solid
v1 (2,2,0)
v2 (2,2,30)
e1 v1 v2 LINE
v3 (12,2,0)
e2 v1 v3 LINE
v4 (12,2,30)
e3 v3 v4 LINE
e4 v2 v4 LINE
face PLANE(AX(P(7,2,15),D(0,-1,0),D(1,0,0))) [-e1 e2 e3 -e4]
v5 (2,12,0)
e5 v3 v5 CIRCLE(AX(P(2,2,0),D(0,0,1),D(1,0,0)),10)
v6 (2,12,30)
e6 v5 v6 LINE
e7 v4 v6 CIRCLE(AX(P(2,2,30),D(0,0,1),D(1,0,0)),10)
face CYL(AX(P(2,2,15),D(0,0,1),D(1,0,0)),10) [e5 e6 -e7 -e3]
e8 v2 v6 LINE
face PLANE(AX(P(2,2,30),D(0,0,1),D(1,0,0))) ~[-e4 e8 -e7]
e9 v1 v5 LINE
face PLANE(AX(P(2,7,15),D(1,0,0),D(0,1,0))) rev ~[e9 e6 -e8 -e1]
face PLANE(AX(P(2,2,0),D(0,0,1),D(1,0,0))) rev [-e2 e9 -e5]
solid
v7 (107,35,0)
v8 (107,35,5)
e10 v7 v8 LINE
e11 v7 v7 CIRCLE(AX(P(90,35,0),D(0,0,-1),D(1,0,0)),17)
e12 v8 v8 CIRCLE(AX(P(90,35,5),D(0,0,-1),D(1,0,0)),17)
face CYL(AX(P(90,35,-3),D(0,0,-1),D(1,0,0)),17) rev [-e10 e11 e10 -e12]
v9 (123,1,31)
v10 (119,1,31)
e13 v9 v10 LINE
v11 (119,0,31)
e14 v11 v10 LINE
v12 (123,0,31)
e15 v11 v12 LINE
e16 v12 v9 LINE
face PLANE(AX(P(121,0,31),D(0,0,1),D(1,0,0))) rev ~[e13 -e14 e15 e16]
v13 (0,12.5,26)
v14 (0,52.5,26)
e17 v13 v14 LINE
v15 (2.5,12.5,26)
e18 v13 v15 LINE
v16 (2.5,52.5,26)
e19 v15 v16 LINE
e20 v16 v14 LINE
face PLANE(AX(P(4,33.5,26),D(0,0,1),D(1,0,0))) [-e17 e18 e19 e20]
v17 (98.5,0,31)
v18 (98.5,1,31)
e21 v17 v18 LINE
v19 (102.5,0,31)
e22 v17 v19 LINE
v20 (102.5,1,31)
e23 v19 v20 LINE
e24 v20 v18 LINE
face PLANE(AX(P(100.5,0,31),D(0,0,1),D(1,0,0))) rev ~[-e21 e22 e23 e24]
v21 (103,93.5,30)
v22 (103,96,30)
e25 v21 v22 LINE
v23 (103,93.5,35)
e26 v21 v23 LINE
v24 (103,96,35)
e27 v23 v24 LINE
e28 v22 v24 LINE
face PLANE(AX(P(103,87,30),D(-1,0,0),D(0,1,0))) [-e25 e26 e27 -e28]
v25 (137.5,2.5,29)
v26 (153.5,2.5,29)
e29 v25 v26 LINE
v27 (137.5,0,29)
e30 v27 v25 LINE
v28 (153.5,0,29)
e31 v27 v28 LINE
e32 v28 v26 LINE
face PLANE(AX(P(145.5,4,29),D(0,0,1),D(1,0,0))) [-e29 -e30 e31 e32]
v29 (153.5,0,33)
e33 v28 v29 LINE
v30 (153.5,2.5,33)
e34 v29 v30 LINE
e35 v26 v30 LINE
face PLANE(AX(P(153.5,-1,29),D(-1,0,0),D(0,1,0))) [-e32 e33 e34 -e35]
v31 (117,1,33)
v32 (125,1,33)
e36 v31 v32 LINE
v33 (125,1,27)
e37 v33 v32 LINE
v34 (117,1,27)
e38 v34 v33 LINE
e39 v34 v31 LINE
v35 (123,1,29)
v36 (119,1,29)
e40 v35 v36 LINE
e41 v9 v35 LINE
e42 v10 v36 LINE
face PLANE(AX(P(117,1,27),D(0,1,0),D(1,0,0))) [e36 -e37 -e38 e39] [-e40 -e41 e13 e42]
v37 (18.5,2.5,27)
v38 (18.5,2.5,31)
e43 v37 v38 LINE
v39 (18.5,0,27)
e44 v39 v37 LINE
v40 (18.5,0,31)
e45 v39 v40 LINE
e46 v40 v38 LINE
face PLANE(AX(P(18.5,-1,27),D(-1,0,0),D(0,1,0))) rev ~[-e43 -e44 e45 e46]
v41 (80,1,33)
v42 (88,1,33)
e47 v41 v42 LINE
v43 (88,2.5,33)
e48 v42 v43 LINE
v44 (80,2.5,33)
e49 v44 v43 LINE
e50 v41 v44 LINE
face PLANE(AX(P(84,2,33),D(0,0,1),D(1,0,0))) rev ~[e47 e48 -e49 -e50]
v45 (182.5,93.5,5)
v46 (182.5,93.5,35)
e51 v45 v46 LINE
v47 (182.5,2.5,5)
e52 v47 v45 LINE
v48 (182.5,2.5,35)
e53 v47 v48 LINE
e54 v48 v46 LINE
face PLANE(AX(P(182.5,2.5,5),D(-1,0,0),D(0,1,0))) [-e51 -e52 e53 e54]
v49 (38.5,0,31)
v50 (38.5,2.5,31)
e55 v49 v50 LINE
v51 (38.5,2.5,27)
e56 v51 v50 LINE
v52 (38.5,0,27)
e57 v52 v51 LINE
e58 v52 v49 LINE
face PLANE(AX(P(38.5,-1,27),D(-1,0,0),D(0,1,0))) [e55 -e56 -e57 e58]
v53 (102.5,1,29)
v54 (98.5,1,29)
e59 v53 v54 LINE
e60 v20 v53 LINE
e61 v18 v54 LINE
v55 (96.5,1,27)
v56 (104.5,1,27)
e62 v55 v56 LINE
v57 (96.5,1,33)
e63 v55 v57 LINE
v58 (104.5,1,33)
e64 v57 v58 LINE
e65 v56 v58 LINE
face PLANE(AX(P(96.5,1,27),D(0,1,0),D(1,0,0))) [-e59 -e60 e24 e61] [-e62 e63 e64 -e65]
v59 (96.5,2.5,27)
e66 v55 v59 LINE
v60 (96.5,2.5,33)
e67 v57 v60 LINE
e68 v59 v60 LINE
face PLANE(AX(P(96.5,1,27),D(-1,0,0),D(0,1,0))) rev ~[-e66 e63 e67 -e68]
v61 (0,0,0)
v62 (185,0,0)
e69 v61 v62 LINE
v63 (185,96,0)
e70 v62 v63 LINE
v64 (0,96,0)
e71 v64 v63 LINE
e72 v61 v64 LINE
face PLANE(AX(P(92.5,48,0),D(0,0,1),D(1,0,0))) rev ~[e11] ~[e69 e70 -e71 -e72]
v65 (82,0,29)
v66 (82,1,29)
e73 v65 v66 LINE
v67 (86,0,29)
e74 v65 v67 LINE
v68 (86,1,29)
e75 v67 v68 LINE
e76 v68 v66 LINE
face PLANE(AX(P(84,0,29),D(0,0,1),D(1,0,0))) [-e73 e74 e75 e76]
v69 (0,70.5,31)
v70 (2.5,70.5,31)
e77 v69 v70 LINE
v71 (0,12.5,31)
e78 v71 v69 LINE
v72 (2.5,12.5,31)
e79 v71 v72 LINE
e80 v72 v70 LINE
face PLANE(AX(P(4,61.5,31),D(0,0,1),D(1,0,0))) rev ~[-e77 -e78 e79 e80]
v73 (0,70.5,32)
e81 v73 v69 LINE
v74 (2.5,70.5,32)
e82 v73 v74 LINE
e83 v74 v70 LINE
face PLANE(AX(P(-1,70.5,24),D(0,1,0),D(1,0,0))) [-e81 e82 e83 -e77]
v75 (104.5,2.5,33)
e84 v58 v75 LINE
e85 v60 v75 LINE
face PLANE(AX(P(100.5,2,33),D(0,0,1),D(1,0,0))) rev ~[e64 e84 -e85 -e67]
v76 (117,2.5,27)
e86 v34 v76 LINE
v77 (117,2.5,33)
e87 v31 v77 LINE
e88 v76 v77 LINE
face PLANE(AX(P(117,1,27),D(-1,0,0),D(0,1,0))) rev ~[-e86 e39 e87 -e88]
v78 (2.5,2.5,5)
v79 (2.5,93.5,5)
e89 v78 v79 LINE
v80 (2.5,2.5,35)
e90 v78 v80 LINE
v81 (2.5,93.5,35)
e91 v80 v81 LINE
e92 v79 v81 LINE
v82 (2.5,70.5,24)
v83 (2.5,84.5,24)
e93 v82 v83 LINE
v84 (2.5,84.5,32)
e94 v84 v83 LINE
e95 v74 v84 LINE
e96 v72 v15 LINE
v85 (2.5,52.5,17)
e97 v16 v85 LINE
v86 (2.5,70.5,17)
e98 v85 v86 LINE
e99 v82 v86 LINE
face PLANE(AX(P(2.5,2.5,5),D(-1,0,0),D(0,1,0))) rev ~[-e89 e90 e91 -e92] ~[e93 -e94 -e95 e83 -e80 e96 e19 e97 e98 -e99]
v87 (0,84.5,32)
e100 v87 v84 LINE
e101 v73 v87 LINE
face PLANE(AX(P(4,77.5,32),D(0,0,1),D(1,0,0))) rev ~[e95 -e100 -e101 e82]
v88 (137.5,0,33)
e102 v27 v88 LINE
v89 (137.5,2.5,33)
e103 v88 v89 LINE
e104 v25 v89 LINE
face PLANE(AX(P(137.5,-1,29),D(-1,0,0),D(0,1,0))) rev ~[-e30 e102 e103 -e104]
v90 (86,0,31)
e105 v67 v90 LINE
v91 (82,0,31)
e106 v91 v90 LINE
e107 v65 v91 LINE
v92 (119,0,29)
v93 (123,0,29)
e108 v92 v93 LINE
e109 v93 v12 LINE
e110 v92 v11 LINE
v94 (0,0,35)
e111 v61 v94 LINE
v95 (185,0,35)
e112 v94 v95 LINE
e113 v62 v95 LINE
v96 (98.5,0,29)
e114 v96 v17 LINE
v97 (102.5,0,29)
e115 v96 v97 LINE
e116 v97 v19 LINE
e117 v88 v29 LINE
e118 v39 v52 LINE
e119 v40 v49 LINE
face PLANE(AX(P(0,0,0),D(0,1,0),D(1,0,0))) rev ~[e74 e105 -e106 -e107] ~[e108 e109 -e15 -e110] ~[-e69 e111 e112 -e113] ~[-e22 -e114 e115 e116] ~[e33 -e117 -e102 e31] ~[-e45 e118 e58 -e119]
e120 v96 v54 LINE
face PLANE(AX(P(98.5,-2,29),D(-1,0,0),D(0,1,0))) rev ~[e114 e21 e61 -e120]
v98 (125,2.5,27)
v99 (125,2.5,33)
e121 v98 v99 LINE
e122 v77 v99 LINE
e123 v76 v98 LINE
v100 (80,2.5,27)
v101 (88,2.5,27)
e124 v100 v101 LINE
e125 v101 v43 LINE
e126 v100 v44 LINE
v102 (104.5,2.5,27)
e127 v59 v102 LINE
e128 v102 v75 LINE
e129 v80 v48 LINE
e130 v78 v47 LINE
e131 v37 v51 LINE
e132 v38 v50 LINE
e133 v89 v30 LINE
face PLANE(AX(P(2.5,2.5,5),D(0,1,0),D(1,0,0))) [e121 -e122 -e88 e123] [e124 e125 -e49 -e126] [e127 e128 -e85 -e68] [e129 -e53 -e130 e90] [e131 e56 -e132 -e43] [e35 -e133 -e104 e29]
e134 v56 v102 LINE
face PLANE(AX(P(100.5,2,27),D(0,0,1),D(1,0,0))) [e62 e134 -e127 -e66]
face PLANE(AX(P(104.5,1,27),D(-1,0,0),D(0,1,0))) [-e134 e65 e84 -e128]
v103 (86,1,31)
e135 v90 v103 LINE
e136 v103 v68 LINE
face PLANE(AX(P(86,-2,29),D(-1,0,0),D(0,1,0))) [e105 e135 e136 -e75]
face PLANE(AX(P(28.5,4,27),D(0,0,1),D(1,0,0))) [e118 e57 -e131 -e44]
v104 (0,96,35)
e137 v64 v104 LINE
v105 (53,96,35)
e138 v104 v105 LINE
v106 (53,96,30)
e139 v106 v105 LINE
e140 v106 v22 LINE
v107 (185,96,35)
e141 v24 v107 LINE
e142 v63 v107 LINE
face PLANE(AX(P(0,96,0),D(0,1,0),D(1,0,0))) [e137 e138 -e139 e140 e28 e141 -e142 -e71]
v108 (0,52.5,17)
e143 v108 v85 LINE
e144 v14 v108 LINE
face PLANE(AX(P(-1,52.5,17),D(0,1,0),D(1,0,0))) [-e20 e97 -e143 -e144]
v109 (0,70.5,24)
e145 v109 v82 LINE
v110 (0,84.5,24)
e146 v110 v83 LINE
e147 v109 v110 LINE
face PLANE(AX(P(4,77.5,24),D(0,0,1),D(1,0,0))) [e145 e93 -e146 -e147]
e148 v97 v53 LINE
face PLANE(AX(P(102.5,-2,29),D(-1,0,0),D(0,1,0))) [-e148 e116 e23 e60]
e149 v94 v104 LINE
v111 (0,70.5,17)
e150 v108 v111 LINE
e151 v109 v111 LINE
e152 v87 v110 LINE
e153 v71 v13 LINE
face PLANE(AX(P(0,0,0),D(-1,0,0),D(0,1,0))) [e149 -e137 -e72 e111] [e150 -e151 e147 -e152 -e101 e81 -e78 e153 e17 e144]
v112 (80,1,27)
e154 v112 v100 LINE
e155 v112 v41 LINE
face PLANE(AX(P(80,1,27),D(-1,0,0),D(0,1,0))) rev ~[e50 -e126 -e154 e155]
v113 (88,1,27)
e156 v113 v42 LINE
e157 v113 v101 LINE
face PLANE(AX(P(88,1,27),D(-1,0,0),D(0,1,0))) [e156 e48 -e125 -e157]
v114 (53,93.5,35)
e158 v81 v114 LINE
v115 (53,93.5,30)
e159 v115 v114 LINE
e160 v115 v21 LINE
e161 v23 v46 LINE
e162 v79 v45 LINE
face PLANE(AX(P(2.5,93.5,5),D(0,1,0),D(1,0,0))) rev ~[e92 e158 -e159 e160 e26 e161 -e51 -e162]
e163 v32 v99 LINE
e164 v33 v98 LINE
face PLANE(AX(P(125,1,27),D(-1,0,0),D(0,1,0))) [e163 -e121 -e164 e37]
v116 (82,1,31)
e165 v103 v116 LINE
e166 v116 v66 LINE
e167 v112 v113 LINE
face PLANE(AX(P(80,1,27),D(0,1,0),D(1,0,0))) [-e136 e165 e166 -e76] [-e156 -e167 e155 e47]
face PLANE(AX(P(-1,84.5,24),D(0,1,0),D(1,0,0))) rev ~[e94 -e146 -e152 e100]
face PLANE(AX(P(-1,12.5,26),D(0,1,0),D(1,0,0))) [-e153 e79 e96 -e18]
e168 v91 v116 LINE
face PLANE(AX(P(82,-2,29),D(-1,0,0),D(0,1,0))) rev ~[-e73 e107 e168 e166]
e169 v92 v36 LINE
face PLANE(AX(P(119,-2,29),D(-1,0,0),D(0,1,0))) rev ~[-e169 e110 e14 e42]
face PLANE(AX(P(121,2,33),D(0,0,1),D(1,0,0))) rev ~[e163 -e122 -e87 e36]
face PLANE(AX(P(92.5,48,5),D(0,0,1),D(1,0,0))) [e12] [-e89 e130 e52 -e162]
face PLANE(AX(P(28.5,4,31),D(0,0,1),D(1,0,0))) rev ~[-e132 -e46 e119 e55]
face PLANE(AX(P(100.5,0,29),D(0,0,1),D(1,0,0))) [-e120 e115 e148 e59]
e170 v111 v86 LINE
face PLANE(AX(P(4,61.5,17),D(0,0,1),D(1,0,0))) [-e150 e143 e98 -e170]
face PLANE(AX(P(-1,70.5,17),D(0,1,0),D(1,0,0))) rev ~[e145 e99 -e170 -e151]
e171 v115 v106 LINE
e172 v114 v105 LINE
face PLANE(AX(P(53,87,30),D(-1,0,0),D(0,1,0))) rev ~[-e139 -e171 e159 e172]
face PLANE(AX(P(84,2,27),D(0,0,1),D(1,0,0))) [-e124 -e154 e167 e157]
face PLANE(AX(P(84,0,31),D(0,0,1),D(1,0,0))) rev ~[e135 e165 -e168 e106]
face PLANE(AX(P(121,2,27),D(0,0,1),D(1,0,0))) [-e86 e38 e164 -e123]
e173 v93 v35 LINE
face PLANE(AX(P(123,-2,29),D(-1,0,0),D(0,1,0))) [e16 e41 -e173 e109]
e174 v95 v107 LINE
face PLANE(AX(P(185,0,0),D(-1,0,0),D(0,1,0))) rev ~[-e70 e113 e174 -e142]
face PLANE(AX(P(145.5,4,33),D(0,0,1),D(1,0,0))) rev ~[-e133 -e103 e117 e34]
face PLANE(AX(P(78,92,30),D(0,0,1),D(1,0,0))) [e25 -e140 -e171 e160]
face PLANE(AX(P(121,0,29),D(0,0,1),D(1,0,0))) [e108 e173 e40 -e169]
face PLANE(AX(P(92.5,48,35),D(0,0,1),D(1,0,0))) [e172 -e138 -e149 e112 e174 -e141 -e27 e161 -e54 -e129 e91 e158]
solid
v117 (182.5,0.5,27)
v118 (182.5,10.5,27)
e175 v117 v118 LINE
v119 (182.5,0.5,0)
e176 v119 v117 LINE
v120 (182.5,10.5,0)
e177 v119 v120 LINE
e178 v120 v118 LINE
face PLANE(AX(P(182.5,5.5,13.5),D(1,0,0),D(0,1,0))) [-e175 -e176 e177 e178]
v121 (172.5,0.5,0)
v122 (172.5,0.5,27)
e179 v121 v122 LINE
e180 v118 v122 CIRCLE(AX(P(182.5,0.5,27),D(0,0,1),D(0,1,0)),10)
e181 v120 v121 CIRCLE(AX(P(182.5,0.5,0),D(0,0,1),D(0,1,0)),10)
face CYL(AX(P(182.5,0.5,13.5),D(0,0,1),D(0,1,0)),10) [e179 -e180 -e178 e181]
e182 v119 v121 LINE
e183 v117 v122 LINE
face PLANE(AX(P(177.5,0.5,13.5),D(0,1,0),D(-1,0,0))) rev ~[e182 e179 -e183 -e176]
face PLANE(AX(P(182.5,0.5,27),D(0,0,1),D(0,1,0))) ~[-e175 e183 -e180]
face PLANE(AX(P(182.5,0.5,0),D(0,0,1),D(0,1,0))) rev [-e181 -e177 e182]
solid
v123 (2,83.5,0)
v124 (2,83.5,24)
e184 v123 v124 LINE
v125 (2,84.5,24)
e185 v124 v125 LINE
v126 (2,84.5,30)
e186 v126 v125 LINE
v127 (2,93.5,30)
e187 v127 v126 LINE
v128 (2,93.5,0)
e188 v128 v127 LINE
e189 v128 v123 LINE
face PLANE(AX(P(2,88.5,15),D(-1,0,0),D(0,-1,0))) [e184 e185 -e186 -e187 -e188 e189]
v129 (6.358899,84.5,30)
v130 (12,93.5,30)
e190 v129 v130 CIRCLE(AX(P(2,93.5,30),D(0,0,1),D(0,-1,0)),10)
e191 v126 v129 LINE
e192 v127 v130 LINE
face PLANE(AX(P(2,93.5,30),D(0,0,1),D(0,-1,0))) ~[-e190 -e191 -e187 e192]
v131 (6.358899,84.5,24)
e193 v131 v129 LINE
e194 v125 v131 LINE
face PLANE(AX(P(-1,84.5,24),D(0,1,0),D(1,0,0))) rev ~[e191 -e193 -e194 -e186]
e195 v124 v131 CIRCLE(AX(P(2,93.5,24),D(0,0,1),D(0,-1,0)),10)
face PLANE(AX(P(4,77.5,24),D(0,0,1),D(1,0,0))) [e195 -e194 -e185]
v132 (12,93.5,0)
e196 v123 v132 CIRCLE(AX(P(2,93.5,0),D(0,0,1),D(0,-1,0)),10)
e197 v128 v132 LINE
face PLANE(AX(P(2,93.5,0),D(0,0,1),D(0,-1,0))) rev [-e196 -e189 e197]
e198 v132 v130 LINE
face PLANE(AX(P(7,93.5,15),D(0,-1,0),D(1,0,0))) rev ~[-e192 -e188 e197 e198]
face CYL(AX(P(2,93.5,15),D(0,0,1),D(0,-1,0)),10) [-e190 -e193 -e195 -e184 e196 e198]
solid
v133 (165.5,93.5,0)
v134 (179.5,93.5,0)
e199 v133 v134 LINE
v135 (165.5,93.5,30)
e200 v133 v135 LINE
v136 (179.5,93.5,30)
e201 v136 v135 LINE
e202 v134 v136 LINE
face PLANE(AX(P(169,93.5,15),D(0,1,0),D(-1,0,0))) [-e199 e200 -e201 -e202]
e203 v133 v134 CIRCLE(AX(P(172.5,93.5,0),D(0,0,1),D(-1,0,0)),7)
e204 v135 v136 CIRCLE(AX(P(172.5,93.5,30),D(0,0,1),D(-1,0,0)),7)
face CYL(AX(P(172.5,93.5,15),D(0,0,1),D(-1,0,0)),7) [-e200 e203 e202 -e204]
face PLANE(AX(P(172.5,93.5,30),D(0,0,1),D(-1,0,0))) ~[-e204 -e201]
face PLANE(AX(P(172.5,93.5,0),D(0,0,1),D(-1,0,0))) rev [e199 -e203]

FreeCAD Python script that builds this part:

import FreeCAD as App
import Part
import Sketcher
Q = App.Units.Quantity

doc = App.newDocument("Part")
body = doc.addObject("PartDesign::Body", "Body")

# Sketch on XZ plane
sketch1 = body.newObject("Sketcher::SketchObject", "Sketch")
sketch1.AttachmentSupport = (doc.getObject("XZ_Plane"), [""])
sketch1.MapMode = "FlatFace"
sketch1.AttachmentOffset = App.Placement(App.Vector(0, 0, -2), App.Rotation())
sketch1.addGeometry([
    Part.LineSegment(App.Vector(2, 30, 0), App.Vector(2, 0, 0)),
    Part.LineSegment(App.Vector(2, 0, 0), App.Vector(12, 0, 0)),
    Part.LineSegment(App.Vector(12, 0, 0), App.Vector(12, 30, 0)),
    Part.LineSegment(App.Vector(12, 30, 0), App.Vector(2, 30, 0)),
], False)
sketch1.addGeometry(Part.LineSegment(App.Vector(2, 0, 0), App.Vector(2, 30, 0)), True)  # axis
sketch1.addConstraint([
    Sketcher.Constraint("Coincident", 0, 2, 1, 1),
    Sketcher.Constraint("Coincident", 1, 2, 2, 1),
    Sketcher.Constraint("Coincident", 2, 2, 3, 1),
    Sketcher.Constraint("Coincident", 3, 2, 0, 1),
    Sketcher.Constraint("Vertical", 0),
    Sketcher.Constraint("Horizontal", 1),
    Sketcher.Constraint("Vertical", 2),
    Sketcher.Constraint("Horizontal", 3),
    Sketcher.Constraint("Vertical", 4),
    Sketcher.Constraint("Coincident", 4, 1, 0, 2),
    Sketcher.Constraint("PointOnObject", 0, 2, -1),
    Sketcher.Constraint("Horizontal", 2, 2, 4, 2),
    Sketcher.Constraint("DistanceX", 1, 1, 1, 2, Q("10 mm")),
    Sketcher.Constraint("DistanceY", 0, 2, 0, 1, Q("30 mm")),
    Sketcher.Constraint("DistanceX", -1, 1, 0, 2, Q("2 mm")),
])
revolution = body.newObject("PartDesign::Revolution", "Revolution")
revolution.Profile = sketch1
revolution.ReferenceAxis = (sketch1, ["Axis0"])
revolution.Angle = 90
body2 = doc.addObject("PartDesign::Body", "Body001")

# Sketch on XZ plane
sketch2 = body2.newObject("Sketcher::SketchObject", "Sketch001")
sketch2.AttachmentSupport = (doc.getObject("XZ_Plane001"), [""])
sketch2.MapMode = "FlatFace"
sketch2.AttachmentOffset = App.Placement(App.Vector(0, 0, -93.5), App.Rotation())
sketch2.addGeometry([
    Part.LineSegment(App.Vector(172, 30, 0), App.Vector(172, 0, 0)),
    Part.LineSegment(App.Vector(172, 0, 0), App.Vector(166, 0, 0)),
    Part.LineSegment(App.Vector(166, 0, 0), App.Vector(166, 30, 0)),
    Part.LineSegment(App.Vector(166, 30, 0), App.Vector(172, 30, 0)),
], False)
sketch2.addGeometry(Part.LineSegment(App.Vector(172, 0, 0), App.Vector(172, 30, 0)), True)  # axis
sketch2.addConstraint([
    Sketcher.Constraint("Coincident", 0, 2, 1, 1),
    Sketcher.Constraint("Coincident", 1, 2, 2, 1),
    Sketcher.Constraint("Coincident", 2, 2, 3, 1),
    Sketcher.Constraint("Coincident", 3, 2, 0, 1),
    Sketcher.Constraint("Vertical", 0),
    Sketcher.Constraint("Horizontal", 1),
    Sketcher.Constraint("Vertical", 2),
    Sketcher.Constraint("Horizontal", 3),
    Sketcher.Constraint("Vertical", 4),
    Sketcher.Constraint("Coincident", 4, 1, 0, 2),
    Sketcher.Constraint("PointOnObject", 0, 2, -1),
    Sketcher.Constraint("Horizontal", 2, 2, 4, 2),
    Sketcher.Constraint("DistanceX", 1, 2, 1, 1, Q("7 mm")),
    Sketcher.Constraint("DistanceY", 0, 2, 0, 1, Q("30 mm")),
    Sketcher.Constraint("DistanceX", -1, 1, 0, 2, Q("172.5 mm")),
])
revolution2 = body2.newObject("PartDesign::Revolution", "Revolution001")
revolution2.Profile = sketch2
revolution2.ReferenceAxis = (sketch2, ["Axis0"])
revolution2.Angle = 180
body3 = doc.addObject("PartDesign::Body", "Body002")

# Sketch on XZ plane
sketch3 = body3.newObject("Sketcher::SketchObject", "Sketch002")
sketch3.AttachmentSupport = (doc.getObject("XZ_Plane002"), [""])
sketch3.MapMode = "FlatFace"
sketch3.addGeometry([
    Part.LineSegment(App.Vector(0, 27, 0), App.Vector(0, 0, 0)),
    Part.LineSegment(App.Vector(0, 0, 0), App.Vector(10, 0, 0)),
    Part.LineSegment(App.Vector(10, 0, 0), App.Vector(10, 27, 0)),
    Part.LineSegment(App.Vector(10, 27, 0), App.Vector(0, 27, 0)),
], False)
sketch3.addConstraint([
    Sketcher.Constraint("Coincident", 0, 2, 1, 1),
    Sketcher.Constraint("Coincident", 1, 2, 2, 1),
    Sketcher.Constraint("Coincident", 2, 2, 3, 1),
    Sketcher.Constraint("Coincident", 3, 2, 0, 1),
    Sketcher.Constraint("Vertical", 0),
    Sketcher.Constraint("Horizontal", 1),
    Sketcher.Constraint("Vertical", 2),
    Sketcher.Constraint("Horizontal", 3),
    Sketcher.Constraint("Coincident", 0, 2, -1, 1),
    Sketcher.Constraint("DistanceX", 1, 1, 1, 2, Q("10 mm")),
    Sketcher.Constraint("DistanceY", 0, 2, 0, 1, Q("27 mm")),
])
revolution3 = body3.newObject("PartDesign::Revolution", "Revolution002")
revolution3.Profile = sketch3
revolution3.ReferenceAxis = (sketch3, ["V_Axis"])
revolution3.Angle = 90
body4 = doc.addObject("PartDesign::Body", "Body003")
doc.recompute()

body3.Placement = App.Placement(App.Vector(182.5, 0.5, 0), App.Rotation(App.Vector(0, 0, 1), 90))
boolean = body4.newObject("PartDesign::Boolean", "Boolean")
boolean.Type = "Fuse"
boolean.addObjects([body3])
body5 = doc.addObject("PartDesign::Body", "Body004")

# Sketch on XY plane
sketch4 = body5.newObject("Sketcher::SketchObject", "Sketch003")
sketch4.AttachmentSupport = (doc.getObject("XY_Plane004"), [""])
sketch4.MapMode = "FlatFace"
sketch4.AttachmentOffset = App.Placement(App.Vector(0, 0, 24), App.Rotation())
sketch4.addGeometry([
    Part.LineSegment(App.Vector(-1, 84, 0), App.Vector(-1, 70, 0)),
    Part.LineSegment(App.Vector(-1, 70, 0), App.Vector(9, 70, 0)),
    Part.LineSegment(App.Vector(9, 70, 0), App.Vector(9, 84, 0)),
    Part.LineSegment(App.Vector(9, 84, 0), App.Vector(-1, 84, 0)),
], False)
sketch4.addConstraint([
    Sketcher.Constraint("Coincident", 0, 2, 1, 1),
    Sketcher.Constraint("Coincident", 1, 2, 2, 1),
    Sketcher.Constraint("Coincident", 2, 2, 3, 1),
    Sketcher.Constraint("Coincident", 3, 2, 0, 1),
    Sketcher.Constraint("Vertical", 0),
    Sketcher.Constraint("Horizontal", 1),
    Sketcher.Constraint("Vertical", 2),
    Sketcher.Constraint("Horizontal", 3),
    Sketcher.Constraint("DistanceX", 1, 1, 1, 2, Q("10 mm")),
    Sketcher.Constraint("DistanceY", 0, 2, 0, 1, Q("14 mm")),
    Sketcher.Constraint("DistanceX", 0, 2, -1, 1, Q("1 mm")),
    Sketcher.Constraint("DistanceY", -1, 1, 0, 2, Q("70.5 mm")),
])
pad1 = body5.newObject("PartDesign::Pad", "Pad")
pad1.Profile = sketch4
pad1.Length = 8
body6 = doc.addObject("PartDesign::Body", "Body005")

# Sketch on XZ plane
sketch5 = body6.newObject("Sketcher::SketchObject", "Sketch004")
sketch5.AttachmentSupport = (doc.getObject("XZ_Plane005"), [""])
sketch5.MapMode = "FlatFace"
sketch5.addGeometry([
    Part.LineSegment(App.Vector(0, 30, 0), App.Vector(0, 0, 0)),
    Part.LineSegment(App.Vector(0, 0, 0), App.Vector(10, 0, 0)),
    Part.LineSegment(App.Vector(10, 0, 0), App.Vector(10, 30, 0)),
    Part.LineSegment(App.Vector(10, 30, 0), App.Vector(0, 30, 0)),
], False)
sketch5.addConstraint([
    Sketcher.Constraint("Coincident", 0, 2, 1, 1),
    Sketcher.Constraint("Coincident", 1, 2, 2, 1),
    Sketcher.Constraint("Coincident", 2, 2, 3, 1),
    Sketcher.Constraint("Coincident", 3, 2, 0, 1),
    Sketcher.Constraint("Vertical", 0),
    Sketcher.Constraint("Horizontal", 1),
    Sketcher.Constraint("Vertical", 2),
    Sketcher.Constraint("Horizontal", 3),
    Sketcher.Constraint("Coincident", 0, 2, -1, 1),
    Sketcher.Constraint("DistanceX", 1, 1, 1, 2, Q("10 mm")),
    Sketcher.Constraint("DistanceY", 0, 2, 0, 1, Q("30 mm")),
])
revolution4 = body6.newObject("PartDesign::Revolution", "Revolution003")
revolution4.Profile = sketch5
revolution4.ReferenceAxis = (sketch5, ["V_Axis"])
revolution4.Angle = 90
body7 = doc.addObject("PartDesign::Body", "Body006")
doc.recompute()

body6.Placement = App.Placement(App.Vector(2, 93.5, 0), App.Rotation(App.Vector(0, 0, 1), 270))
boolean2 = body7.newObject("PartDesign::Boolean", "Boolean001")
boolean2.Type = "Fuse"
boolean2.addObjects([body6])
doc.recompute()

body8 = doc.addObject("PartDesign::Body", "Body007")
body8.BaseFeature = body5
boolean3 = body7.newObject("PartDesign::Boolean", "Boolean002")
boolean3.Type = "Cut"
boolean3.addObjects([body8])
doc.recompute()
body9 = doc.addObject("PartDesign::Body", "Body008")

# Sketch on XY plane
sketch6 = body9.newObject("Sketcher::SketchObject", "Sketch005")
sketch6.AttachmentSupport = (doc.getObject("XY_Plane008"), [""])
sketch6.MapMode = "FlatFace"
sketch6.AttachmentOffset = App.Placement(App.Vector(0, 0, -3), App.Rotation())
sketch6.addGeometry(Part.Circle(App.Vector(90, 35, 0), App.Vector(0, 0, 1), 17), False)
sketch6.addConstraint([
    Sketcher.Constraint("Diameter", 0, Q("34 mm")),
    Sketcher.Constraint("DistanceX", -1, 1, 0, 3, Q("90 mm")),
    Sketcher.Constraint("DistanceY", -1, 1, 0, 3, Q("35 mm")),
])
pad2 = body9.newObject("PartDesign::Pad", "Pad001")
pad2.Profile = sketch6
pad2.Length = 10
body10 = doc.addObject("PartDesign::Body", "Body009")

# Sketch on XY plane
sketch7 = body10.newObject("Sketcher::SketchObject", "Sketch006")
sketch7.AttachmentSupport = (doc.getObject("XY_Plane009"), [""])
sketch7.MapMode = "FlatFace"
sketch7.AttachmentOffset = App.Placement(App.Vector(0, 0, 27), App.Rotation())
sketch7.addGeometry([
    Part.LineSegment(App.Vector(96.5, 3, 0), App.Vector(96.5, 1, 0)),
    Part.LineSegment(App.Vector(96.5, 1, 0), App.Vector(104.5, 1, 0)),
    Part.LineSegment(App.Vector(104.5, 1, 0), App.Vector(104.5, 3, 0)),
    Part.LineSegment(App.Vector(104.5, 3, 0), App.Vector(96.5, 3, 0)),
], False)
sketch7.addConstraint([
    Sketcher.Constraint("Coincident", 0, 2, 1, 1),
    Sketcher.Constraint("Coincident", 1, 2, 2, 1),
    Sketcher.Constraint("Coincident", 2, 2, 3, 1),
    Sketcher.Constraint("Coincident", 3, 2, 0, 1),
    Sketcher.Constraint("Vertical", 0),
    Sketcher.Constraint("Horizontal", 1),
    Sketcher.Constraint("Vertical", 2),
    Sketcher.Constraint("Horizontal", 3),
    Sketcher.Constraint("DistanceX", 1, 1, 1, 2, Q("8 mm")),
    Sketcher.Constraint("DistanceY", 0, 2, 0, 1, Q("2 mm")),
    Sketcher.Constraint("DistanceY", -1, 1, 0, 2, Q("1 mm")),
    Sketcher.Constraint("DistanceX", -1, 1, 0, 2, Q("96.5 mm")),
])
pad3 = body10.newObject("PartDesign::Pad", "Pad002")
pad3.Profile = sketch7
pad3.Length = 6
body11 = doc.addObject("PartDesign::Body", "Body010")

# Sketch on XY plane
sketch8 = body11.newObject("Sketcher::SketchObject", "Sketch007")
sketch8.AttachmentSupport = (doc.getObject("XY_Plane010"), [""])
sketch8.MapMode = "FlatFace"
sketch8.AttachmentOffset = App.Placement(App.Vector(0, 0, 27), App.Rotation())
sketch8.addGeometry([
    Part.LineSegment(App.Vector(80, 3, 0), App.Vector(80, 1, 0)),
    Part.LineSegment(App.Vector(80, 1, 0), App.Vector(88, 1, 0)),
    Part.LineSegment(App.Vector(88, 1, 0), App.Vector(88, 3, 0)),
    Part.LineSegment(App.Vector(88, 3, 0), App.Vector(80, 3, 0)),
], False)
sketch8.addConstraint([
    Sketcher.Constraint("Coincident", 0, 2, 1, 1),
    Sketcher.Constraint("Coincident", 1, 2, 2, 1),
    Sketcher.Constraint("Coincident", 2, 2, 3, 1),
    Sketcher.Constraint("Coincident", 3, 2, 0, 1),
    Sketcher.Constraint("Vertical", 0),
    Sketcher.Constraint("Horizontal", 1),
    Sketcher.Constraint("Vertical", 2),
    Sketcher.Constraint("Horizontal", 3),
    Sketcher.Constraint("DistanceX", 1, 1, 1, 2, Q("8 mm")),
    Sketcher.Constraint("DistanceY", 0, 2, 0, 1, Q("2 mm")),
    Sketcher.Constraint("DistanceX", -1, 1, 0, 2, Q("80 mm")),
    Sketcher.Constraint("DistanceY", -1, 1, 0, 2, Q("1 mm")),
])
pad4 = body11.newObject("PartDesign::Pad", "Pad003")
pad4.Profile = sketch8
pad4.Length = 6
body12 = doc.addObject("PartDesign::Body", "Body011")
body12.AllowCompound = True

# Sketch on XY plane
sketch9 = body12.newObject("Sketcher::SketchObject", "Sketch008")
sketch9.AttachmentSupport = (doc.getObject("XY_Plane011"), [""])
sketch9.MapMode = "FlatFace"
sketch9.AttachmentOffset = App.Placement(App.Vector(0, 0, 27), App.Rotation())
sketch9.addGeometry([
    Part.LineSegment(App.Vector(117, 3, 0), App.Vector(117, 1, 0)),
    Part.LineSegment(App.Vector(117, 1, 0), App.Vector(125, 1, 0)),
    Part.LineSegment(App.Vector(125, 1, 0), App.Vector(125, 3, 0)),
    Part.LineSegment(App.Vector(125, 3, 0), App.Vector(117, 3, 0)),
], False)
sketch9.addConstraint([
    Sketcher.Constraint("Coincident", 0, 2, 1, 1),
    Sketcher.Constraint("Coincident", 1, 2, 2, 1),
    Sketcher.Constraint("Coincident", 2, 2, 3, 1),
    Sketcher.Constraint("Coincident", 3, 2, 0, 1),
    Sketcher.Constraint("Vertical", 0),
    Sketcher.Constraint("Horizontal", 1),
    Sketcher.Constraint("Vertical", 2),
    Sketcher.Constraint("Horizontal", 3),
    Sketcher.Constraint("DistanceX", 1, 1, 1, 2, Q("8 mm")),
    Sketcher.Constraint("DistanceY", 0, 2, 0, 1, Q("2 mm")),
    Sketcher.Constraint("DistanceX", -1, 1, 0, 2, Q("117 mm")),
    Sketcher.Constraint("DistanceY", -1, 1, 0, 2, Q("1 mm")),
])
pad5 = body12.newObject("PartDesign::Pad", "Pad004")
pad5.Profile = sketch9
pad5.Length = 6
doc.recompute()

boolean4 = body12.newObject("PartDesign::Boolean", "Boolean003")
boolean4.Type = "Fuse"
boolean4.addObjects([body10])
doc.recompute()

boolean5 = body12.newObject("PartDesign::Boolean", "Boolean004")
boolean5.Type = "Fuse"
boolean5.addObjects([body11])
body13 = doc.addObject("PartDesign::Body", "Body012")

# Sketch on XY plane
sketch10 = body13.newObject("Sketcher::SketchObject", "Sketch009")
sketch10.AttachmentSupport = (doc.getObject("XY_Plane012"), [""])
sketch10.MapMode = "FlatFace"
sketch10.AttachmentOffset = App.Placement(App.Vector(0, 0, 29), App.Rotation())
sketch10.addGeometry([
    Part.LineSegment(App.Vector(98.5, 2, 0), App.Vector(98.5, -2, 0)),
    Part.LineSegment(App.Vector(98.5, -2, 0), App.Vector(102.5, -2, 0)),
    Part.LineSegment(App.Vector(102.5, -2, 0), App.Vector(102.5, 2, 0)),
    Part.LineSegment(App.Vector(102.5, 2, 0), App.Vector(98.5, 2, 0)),
], False)
sketch10.addConstraint([
    Sketcher.Constraint("Coincident", 0, 2, 1, 1),
    Sketcher.Constraint("Coincident", 1, 2, 2, 1),
    Sketcher.Constraint("Coincident", 2, 2, 3, 1),
    Sketcher.Constraint("Coincident", 3, 2, 0, 1),
    Sketcher.Constraint("Vertical", 0),
    Sketcher.Constraint("Horizontal", 1),
    Sketcher.Constraint("Vertical", 2),
    Sketcher.Constraint("Horizontal", 3),
    Sketcher.Constraint("Equal", 3, 0),
    Sketcher.Constraint("DistanceX", 1, 1, 1, 2, Q("4 mm")),
    Sketcher.Constraint("DistanceY", 0, 2, -1, 1, Q("2 mm")),
    Sketcher.Constraint("DistanceX", -1, 1, 0, 2, Q("98.5 mm")),
])
pad6 = body13.newObject("PartDesign::Pad", "Pad005")
pad6.Profile = sketch10
pad6.Length = 2
body14 = doc.addObject("PartDesign::Body", "Body013")

# Sketch on XY plane
sketch11 = body14.newObject("Sketcher::SketchObject", "Sketch010")
sketch11.AttachmentSupport = (doc.getObject("XY_Plane013"), [""])
sketch11.MapMode = "FlatFace"
sketch11.AttachmentOffset = App.Placement(App.Vector(0, 0, 29), App.Rotation())
sketch11.addGeometry([
    Part.LineSegment(App.Vector(119, 2, 0), App.Vector(119, -2, 0)),
    Part.LineSegment(App.Vector(119, -2, 0), App.Vector(123, -2, 0)),
    Part.LineSegment(App.Vector(123, -2, 0), App.Vector(123, 2, 0)),
    Part.LineSegment(App.Vector(123, 2, 0), App.Vector(119, 2, 0)),
], False)
sketch11.addConstraint([
    Sketcher.Constraint("Coincident", 0, 2, 1, 1),
    Sketcher.Constraint("Coincident", 1, 2, 2, 1),
    Sketcher.Constraint("Coincident", 2, 2, 3, 1),
    Sketcher.Constraint("Coincident", 3, 2, 0, 1),
    Sketcher.Constraint("Vertical", 0),
    Sketcher.Constraint("Horizontal", 1),
    Sketcher.Constraint("Vertical", 2),
    Sketcher.Constraint("Horizontal", 3),
    Sketcher.Constraint("Equal", 3, 0),
    Sketcher.Constraint("DistanceX", 1, 1, 1, 2, Q("4 mm")),
    Sketcher.Constraint("DistanceX", -1, 1, 0, 2, Q("119 mm")),
    Sketcher.Constraint("DistanceY", 0, 2, -1, 1, Q("2 mm")),
])
pad7 = body14.newObject("PartDesign::Pad", "Pad006")
pad7.Profile = sketch11
pad7.Length = 2
body15 = doc.addObject("PartDesign::Body", "Body014")

# Sketch on XY plane
sketch12 = body15.newObject("Sketcher::SketchObject", "Sketch011")
sketch12.AttachmentSupport = (doc.getObject("XY_Plane014"), [""])
sketch12.MapMode = "FlatFace"
sketch12.AttachmentOffset = App.Placement(App.Vector(0, 0, 29), App.Rotation())
sketch12.addGeometry([
    Part.LineSegment(App.Vector(82, 2, 0), App.Vector(82, -2, 0)),
    Part.LineSegment(App.Vector(82, -2, 0), App.Vector(86, -2, 0)),
    Part.LineSegment(App.Vector(86, -2, 0), App.Vector(86, 2, 0)),
    Part.LineSegment(App.Vector(86, 2, 0), App.Vector(82, 2, 0)),
], False)
sketch12.addConstraint([
    Sketcher.Constraint("Coincident", 0, 2, 1, 1),
    Sketcher.Constraint("Coincident", 1, 2, 2, 1),
    Sketcher.Constraint("Coincident", 2, 2, 3, 1),
    Sketcher.Constraint("Coincident", 3, 2, 0, 1),
    Sketcher.Constraint("Vertical", 0),
    Sketcher.Constraint("Horizontal", 1),
    Sketcher.Constraint("Vertical", 2),
    Sketcher.Constraint("Horizontal", 3),
    Sketcher.Constraint("Equal", 3, 0),
    Sketcher.Constraint("DistanceX", 1, 1, 1, 2, Q("4 mm")),
    Sketcher.Constraint("DistanceX", -1, 1, 0, 2, Q("82 mm")),
    Sketcher.Constraint("DistanceY", 0, 2, -1, 1, Q("2 mm")),
])
pad8 = body15.newObject("PartDesign::Pad", "Pad007")
pad8.Profile = sketch12
pad8.Length = 2
body16 = doc.addObject("PartDesign::Body", "Body015")

# Sketch on XY plane
sketch13 = body16.newObject("Sketcher::SketchObject", "Sketch012")
sketch13.AttachmentSupport = (doc.getObject("XY_Plane015"), [""])
sketch13.MapMode = "FlatFace"
sketch13.AttachmentOffset = App.Placement(App.Vector(0, 0, 27), App.Rotation())
sketch13.addGeometry([
    Part.LineSegment(App.Vector(18, 9, 0), App.Vector(18, -1, 0)),
    Part.LineSegment(App.Vector(18, -1, 0), App.Vector(38, -1, 0)),
    Part.LineSegment(App.Vector(38, -1, 0), App.Vector(38, 9, 0)),
    Part.LineSegment(App.Vector(38, 9, 0), App.Vector(18, 9, 0)),
], False)
sketch13.addConstraint([
    Sketcher.Constraint("Coincident", 0, 2, 1, 1),
    Sketcher.Constraint("Coincident", 1, 2, 2, 1),
    Sketcher.Constraint("Coincident", 2, 2, 3, 1),
    Sketcher.Constraint("Coincident", 3, 2, 0, 1),
    Sketcher.Constraint("Vertical", 0),
    Sketcher.Constraint("Horizontal", 1),
    Sketcher.Constraint("Vertical", 2),
    Sketcher.Constraint("Horizontal", 3),
    Sketcher.Constraint("DistanceX", 1, 1, 1, 2, Q("20 mm")),
    Sketcher.Constraint("DistanceY", 0, 2, 0, 1, Q("10 mm")),
    Sketcher.Constraint("DistanceY", 0, 2, -1, 1, Q("1 mm")),
    Sketcher.Constraint("DistanceX", -1, 1, 0, 2, Q("18.5 mm")),
])
pad9 = body16.newObject("PartDesign::Pad", "Pad008")
pad9.Profile = sketch13
pad9.Length = 4
body17 = doc.addObject("PartDesign::Body", "Body016")

# Sketch on XY plane
sketch14 = body17.newObject("Sketcher::SketchObject", "Sketch013")
sketch14.AttachmentSupport = (doc.getObject("XY_Plane016"), [""])
sketch14.MapMode = "FlatFace"
sketch14.AttachmentOffset = App.Placement(App.Vector(0, 0, 30), App.Rotation())
sketch14.addGeometry([
    Part.LineSegment(App.Vector(53, 97, 0), App.Vector(53, 87, 0)),
    Part.LineSegment(App.Vector(53, 87, 0), App.Vector(103, 87, 0)),
    Part.LineSegment(App.Vector(103, 87, 0), App.Vector(103, 97, 0)),
    Part.LineSegment(App.Vector(103, 97, 0), App.Vector(53, 97, 0)),
], False)
sketch14.addConstraint([
    Sketcher.Constraint("Coincident", 0, 2, 1, 1),
    Sketcher.Constraint("Coincident", 1, 2, 2, 1),
    Sketcher.Constraint("Coincident", 2, 2, 3, 1),
    Sketcher.Constraint("Coincident", 3, 2, 0, 1),
    Sketcher.Constraint("Vertical", 0),
    Sketcher.Constraint("Horizontal", 1),
    Sketcher.Constraint("Vertical", 2),
    Sketcher.Constraint("Horizontal", 3),
    Sketcher.Constraint("DistanceX", 1, 1, 1, 2, Q("50 mm")),
    Sketcher.Constraint("DistanceY", 0, 2, 0, 1, Q("10 mm")),
    Sketcher.Constraint("DistanceX", -1, 1, 0, 2, Q("53 mm")),
    Sketcher.Constraint("DistanceY", -1, 1, 0, 2, Q("87 mm")),
])
pad10 = body17.newObject("PartDesign::Pad", "Pad009")
pad10.Profile = sketch14
pad10.Length = 5
body18 = doc.addObject("PartDesign::Body", "Body017")

# Sketch on XY plane
sketch15 = body18.newObject("Sketcher::SketchObject", "Sketch014")
sketch15.AttachmentSupport = (doc.getObject("XY_Plane017"), [""])
sketch15.MapMode = "FlatFace"
sketch15.AttachmentOffset = App.Placement(App.Vector(0, 0, 26), App.Rotation())
sketch15.addGeometry([
    Part.LineSegment(App.Vector(-1, 54, 0), App.Vector(-1, 12, 0)),
    Part.LineSegment(App.Vector(-1, 12, 0), App.Vector(9, 12, 0)),
    Part.LineSegment(App.Vector(9, 12, 0), App.Vector(9, 54, 0)),
    Part.LineSegment(App.Vector(9, 54, 0), App.Vector(-1, 54, 0)),
], False)
sketch15.addConstraint([
    Sketcher.Constraint("Coincident", 0, 2, 1, 1),
    Sketcher.Constraint("Coincident", 1, 2, 2, 1),
    Sketcher.Constraint("Coincident", 2, 2, 3, 1),
    Sketcher.Constraint("Coincident", 3, 2, 0, 1),
    Sketcher.Constraint("Vertical", 0),
    Sketcher.Constraint("Horizontal", 1),
    Sketcher.Constraint("Vertical", 2),
    Sketcher.Constraint("Horizontal", 3),
    Sketcher.Constraint("DistanceX", 1, 1, 1, 2, Q("10 mm")),
    Sketcher.Constraint("DistanceY", 0, 2, 0, 1, Q("42 mm")),
    Sketcher.Constraint("DistanceX", 0, 2, -1, 1, Q("1 mm")),
    Sketcher.Constraint("DistanceY", -1, 1, 0, 2, Q("12.5 mm")),
])
pad11 = body18.newObject("PartDesign::Pad", "Pad010")
pad11.Profile = sketch15
pad11.Length = 5
body19 = doc.addObject("PartDesign::Body", "Body018")

# Sketch on XY plane
sketch16 = body19.newObject("Sketcher::SketchObject", "Sketch015")
sketch16.AttachmentSupport = (doc.getObject("XY_Plane018"), [""])
sketch16.MapMode = "FlatFace"
sketch16.AttachmentOffset = App.Placement(App.Vector(0, 0, 17), App.Rotation())
sketch16.addGeometry([
    Part.LineSegment(App.Vector(-1, 70, 0), App.Vector(-1, 52, 0)),
    Part.LineSegment(App.Vector(-1, 52, 0), App.Vector(9, 52, 0)),
    Part.LineSegment(App.Vector(9, 52, 0), App.Vector(9, 70, 0)),
    Part.LineSegment(App.Vector(9, 70, 0), App.Vector(-1, 70, 0)),
], False)
sketch16.addConstraint([
    Sketcher.Constraint("Coincident", 0, 2, 1, 1),
    Sketcher.Constraint("Coincident", 1, 2, 2, 1),
    Sketcher.Constraint("Coincident", 2, 2, 3, 1),
    Sketcher.Constraint("Coincident", 3, 2, 0, 1),
    Sketcher.Constraint("Vertical", 0),
    Sketcher.Constraint("Horizontal", 1),
    Sketcher.Constraint("Vertical", 2),
    Sketcher.Constraint("Horizontal", 3),
    Sketcher.Constraint("DistanceX", 1, 1, 1, 2, Q("10 mm")),
    Sketcher.Constraint("DistanceY", 0, 2, 0, 1, Q("18 mm")),
    Sketcher.Constraint("DistanceX", 0, 2, -1, 1, Q("1 mm")),
    Sketcher.Constraint("DistanceY", -1, 1, 0, 2, Q("52.5 mm")),
])
pad12 = body19.newObject("PartDesign::Pad", "Pad011")
pad12.Profile = sketch16
pad12.Length = 14
body20 = doc.addObject("PartDesign::Body", "Body019")
body20.AllowCompound = True

# Sketch on XY plane
sketch17 = body20.newObject("Sketcher::SketchObject", "Sketch016")
sketch17.AttachmentSupport = (doc.getObject("XY_Plane019"), [""])
sketch17.MapMode = "FlatFace"
sketch17.AttachmentOffset = App.Placement(App.Vector(0, 0, 29), App.Rotation())
sketch17.addGeometry([
    Part.LineSegment(App.Vector(138, 9, 0), App.Vector(138, -1, 0)),
    Part.LineSegment(App.Vector(138, -1, 0), App.Vector(154, -1, 0)),
    Part.LineSegment(App.Vector(154, -1, 0), App.Vector(154, 9, 0)),
    Part.LineSegment(App.Vector(154, 9, 0), App.Vector(138, 9, 0)),
], False)
sketch17.addConstraint([
    Sketcher.Constraint("Coincident", 0, 2, 1, 1),
    Sketcher.Constraint("Coincident", 1, 2, 2, 1),
    Sketcher.Constraint("Coincident", 2, 2, 3, 1),
    Sketcher.Constraint("Coincident", 3, 2, 0, 1),
    Sketcher.Constraint("Vertical", 0),
    Sketcher.Constraint("Horizontal", 1),
    Sketcher.Constraint("Vertical", 2),
    Sketcher.Constraint("Horizontal", 3),
    Sketcher.Constraint("DistanceX", 1, 1, 1, 2, Q("16 mm")),
    Sketcher.Constraint("DistanceY", 0, 2, 0, 1, Q("10 mm")),
    Sketcher.Constraint("DistanceY", 0, 2, -1, 1, Q("1 mm")),
    Sketcher.Constraint("DistanceX", -1, 1, 0, 2, Q("137.5 mm")),
])
pad13 = body20.newObject("PartDesign::Pad", "Pad012")
pad13.Profile = sketch17
pad13.Length = 4
doc.recompute()

boolean6 = body20.newObject("PartDesign::Boolean", "Boolean005")
boolean6.Type = "Fuse"
boolean6.addObjects([body13])
doc.recompute()

boolean7 = body20.newObject("PartDesign::Boolean", "Boolean006")
boolean7.Type = "Fuse"
boolean7.addObjects([body14])
doc.recompute()

boolean8 = body20.newObject("PartDesign::Boolean", "Boolean007")
boolean8.Type = "Fuse"
boolean8.addObjects([body15])
doc.recompute()

boolean9 = body20.newObject("PartDesign::Boolean", "Boolean008")
boolean9.Type = "Fuse"
boolean9.addObjects([body16])
doc.recompute()

boolean10 = body20.newObject("PartDesign::Boolean", "Boolean009")
boolean10.Type = "Fuse"
boolean10.addObjects([body17])
doc.recompute()

boolean11 = body20.newObject("PartDesign::Boolean", "Boolean010")
boolean11.Type = "Fuse"
boolean11.addObjects([body18])
doc.recompute()

boolean12 = body20.newObject("PartDesign::Boolean", "Boolean011")
boolean12.Type = "Fuse"
boolean12.addObjects([body19])
doc.recompute()

boolean13 = body20.newObject("PartDesign::Boolean", "Boolean012")
boolean13.Type = "Fuse"
boolean13.addObjects([body5])
body21 = doc.addObject("PartDesign::Body", "Body020")

# Sketch on XY plane
sketch18 = body21.newObject("Sketcher::SketchObject", "Sketch017")
sketch18.AttachmentSupport = (doc.getObject("XY_Plane020"), [""])
sketch18.MapMode = "FlatFace"
sketch18.AttachmentOffset = App.Placement(App.Vector(0, 0, 5), App.Rotation())
sketch18.addGeometry([
    Part.LineSegment(App.Vector(2, 94, 0), App.Vector(2, 2, 0)),
    Part.LineSegment(App.Vector(2, 2, 0), App.Vector(182, 2, 0)),
    Part.LineSegment(App.Vector(182, 2, 0), App.Vector(182, 94, 0)),
    Part.LineSegment(App.Vector(182, 94, 0), App.Vector(2, 94, 0)),
], False)
sketch18.addConstraint([
    Sketcher.Constraint("Coincident", 0, 2, 1, 1),
    Sketcher.Constraint("Coincident", 1, 2, 2, 1),
    Sketcher.Constraint("Coincident", 2, 2, 3, 1),
    Sketcher.Constraint("Coincident", 3, 2, 0, 1),
    Sketcher.Constraint("Vertical", 0),
    Sketcher.Constraint("Horizontal", 1),
    Sketcher.Constraint("Vertical", 2),
    Sketcher.Constraint("Horizontal", 3),
    Sketcher.Constraint("DistanceX", 1, 1, 1, 2, Q("180 mm")),
    Sketcher.Constraint("DistanceY", 0, 2, 0, 1, Q("91 mm")),
    Sketcher.Constraint("DistanceX", -1, 1, 0, 2, Q("2.5 mm")),
    Sketcher.Constraint("DistanceY", -1, 1, 0, 2, Q("2.5 mm")),
])
pad14 = body21.newObject("PartDesign::Pad", "Pad013")
pad14.Profile = sketch18
pad14.Length = 30
body22 = doc.addObject("PartDesign::Body", "Body021")

# Sketch on XY plane
sketch19 = body22.newObject("Sketcher::SketchObject", "Sketch018")
sketch19.AttachmentSupport = (doc.getObject("XY_Plane021"), [""])
sketch19.MapMode = "FlatFace"
sketch19.addGeometry([
    Part.LineSegment(App.Vector(0, 96, 0), App.Vector(0, 0, 0)),
    Part.LineSegment(App.Vector(0, 0, 0), App.Vector(185, 0, 0)),
    Part.LineSegment(App.Vector(185, 0, 0), App.Vector(185, 96, 0)),
    Part.LineSegment(App.Vector(185, 96, 0), App.Vector(0, 96, 0)),
], False)
sketch19.addConstraint([
    Sketcher.Constraint("Coincident", 0, 2, 1, 1),
    Sketcher.Constraint("Coincident", 1, 2, 2, 1),
    Sketcher.Constraint("Coincident", 2, 2, 3, 1),
    Sketcher.Constraint("Coincident", 3, 2, 0, 1),
    Sketcher.Constraint("Vertical", 0),
    Sketcher.Constraint("Horizontal", 1),
    Sketcher.Constraint("Vertical", 2),
    Sketcher.Constraint("Horizontal", 3),
    Sketcher.Constraint("Coincident", 0, 2, -1, 1),
    Sketcher.Constraint("DistanceX", 1, 1, 1, 2, Q("185 mm")),
    Sketcher.Constraint("DistanceY", 0, 2, 0, 1, Q("96 mm")),
])
pad15 = body22.newObject("PartDesign::Pad", "Pad014")
pad15.Profile = sketch19
pad15.Length = 35
doc.recompute()

boolean14 = body22.newObject("PartDesign::Boolean", "Boolean013")
boolean14.Type = "Cut"
boolean14.addObjects([body21])
doc.recompute()

boolean15 = body22.newObject("PartDesign::Boolean", "Boolean014")
boolean15.Type = "Cut"
boolean15.addObjects([body20])
doc.recompute()

boolean16 = body22.newObject("PartDesign::Boolean", "Boolean015")
boolean16.Type = "Cut"
boolean16.addObjects([body12])
doc.recompute()

boolean17 = body22.newObject("PartDesign::Boolean", "Boolean016")
boolean17.Type = "Cut"
boolean17.addObjects([body9])

doc.recompute()
